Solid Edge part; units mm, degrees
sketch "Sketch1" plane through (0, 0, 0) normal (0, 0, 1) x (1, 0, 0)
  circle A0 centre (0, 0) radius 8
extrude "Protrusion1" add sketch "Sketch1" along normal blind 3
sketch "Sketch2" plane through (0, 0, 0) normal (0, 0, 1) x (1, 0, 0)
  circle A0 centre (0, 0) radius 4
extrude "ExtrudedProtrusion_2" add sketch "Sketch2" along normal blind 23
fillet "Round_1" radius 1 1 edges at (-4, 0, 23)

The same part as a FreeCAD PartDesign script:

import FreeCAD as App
import Part
import Sketcher

V = App.Vector


def edges_at(feature, points):
    """Names of the edges that pass closest to the given points."""
    edges = feature.Shape.Edges
    near = lambda p: min(range(len(edges)), key=lambda i: edges[i].distToShape(Part.Vertex(*p))[0])
    return sorted({f"Edge{near(p) + 1}" for p in points})

doc = App.newDocument("Part")
body = doc.addObject("PartDesign::Body", "Body")

# Sketch on XY plane
sketch1 = doc.addObject("Sketcher::SketchObject", "Sketch")
body.addObject(sketch1)
sketch1.AttachmentSupport = (doc.XY_Plane, [""])
sketch1.MapMode = "FlatFace"
sketch1.addGeometry(Part.Circle(V(0, 0, 0), V(0, 0, 1), 8), False)
sketch1.addConstraint([
    Sketcher.Constraint("Coincident", 0, 3, -1, 1),
    Sketcher.Constraint("Diameter", 0, 16.0),
])
pad1 = doc.addObject("PartDesign::Pad", "Pad")
body.addObject(pad1)
pad1.Profile = sketch1
pad1.Length = 3

# Sketch on XY plane
sketch2 = doc.addObject("Sketcher::SketchObject", "Sketch001")
body.addObject(sketch2)
sketch2.AttachmentSupport = (doc.XY_Plane, [""])
sketch2.MapMode = "FlatFace"
sketch2.addGeometry(Part.Circle(V(0, 0, 0), V(0, 0, 1), 4), False)
sketch2.addConstraint([
    Sketcher.Constraint("Coincident", 0, 3, -1, 1),
    Sketcher.Constraint("Diameter", 0, 8.0),
])
pad2 = doc.addObject("PartDesign::Pad", "Pad001")
body.addObject(pad2)
pad2.Profile = sketch2
pad2.Length = 23
doc.recompute()

fillet = doc.addObject("PartDesign::Fillet", "Fillet")
body.addObject(fillet)
fillet.Base = (pad2, edges_at(pad2, [(-4, 0, 23)]))
fillet.Radius = 1

doc.recompute()
